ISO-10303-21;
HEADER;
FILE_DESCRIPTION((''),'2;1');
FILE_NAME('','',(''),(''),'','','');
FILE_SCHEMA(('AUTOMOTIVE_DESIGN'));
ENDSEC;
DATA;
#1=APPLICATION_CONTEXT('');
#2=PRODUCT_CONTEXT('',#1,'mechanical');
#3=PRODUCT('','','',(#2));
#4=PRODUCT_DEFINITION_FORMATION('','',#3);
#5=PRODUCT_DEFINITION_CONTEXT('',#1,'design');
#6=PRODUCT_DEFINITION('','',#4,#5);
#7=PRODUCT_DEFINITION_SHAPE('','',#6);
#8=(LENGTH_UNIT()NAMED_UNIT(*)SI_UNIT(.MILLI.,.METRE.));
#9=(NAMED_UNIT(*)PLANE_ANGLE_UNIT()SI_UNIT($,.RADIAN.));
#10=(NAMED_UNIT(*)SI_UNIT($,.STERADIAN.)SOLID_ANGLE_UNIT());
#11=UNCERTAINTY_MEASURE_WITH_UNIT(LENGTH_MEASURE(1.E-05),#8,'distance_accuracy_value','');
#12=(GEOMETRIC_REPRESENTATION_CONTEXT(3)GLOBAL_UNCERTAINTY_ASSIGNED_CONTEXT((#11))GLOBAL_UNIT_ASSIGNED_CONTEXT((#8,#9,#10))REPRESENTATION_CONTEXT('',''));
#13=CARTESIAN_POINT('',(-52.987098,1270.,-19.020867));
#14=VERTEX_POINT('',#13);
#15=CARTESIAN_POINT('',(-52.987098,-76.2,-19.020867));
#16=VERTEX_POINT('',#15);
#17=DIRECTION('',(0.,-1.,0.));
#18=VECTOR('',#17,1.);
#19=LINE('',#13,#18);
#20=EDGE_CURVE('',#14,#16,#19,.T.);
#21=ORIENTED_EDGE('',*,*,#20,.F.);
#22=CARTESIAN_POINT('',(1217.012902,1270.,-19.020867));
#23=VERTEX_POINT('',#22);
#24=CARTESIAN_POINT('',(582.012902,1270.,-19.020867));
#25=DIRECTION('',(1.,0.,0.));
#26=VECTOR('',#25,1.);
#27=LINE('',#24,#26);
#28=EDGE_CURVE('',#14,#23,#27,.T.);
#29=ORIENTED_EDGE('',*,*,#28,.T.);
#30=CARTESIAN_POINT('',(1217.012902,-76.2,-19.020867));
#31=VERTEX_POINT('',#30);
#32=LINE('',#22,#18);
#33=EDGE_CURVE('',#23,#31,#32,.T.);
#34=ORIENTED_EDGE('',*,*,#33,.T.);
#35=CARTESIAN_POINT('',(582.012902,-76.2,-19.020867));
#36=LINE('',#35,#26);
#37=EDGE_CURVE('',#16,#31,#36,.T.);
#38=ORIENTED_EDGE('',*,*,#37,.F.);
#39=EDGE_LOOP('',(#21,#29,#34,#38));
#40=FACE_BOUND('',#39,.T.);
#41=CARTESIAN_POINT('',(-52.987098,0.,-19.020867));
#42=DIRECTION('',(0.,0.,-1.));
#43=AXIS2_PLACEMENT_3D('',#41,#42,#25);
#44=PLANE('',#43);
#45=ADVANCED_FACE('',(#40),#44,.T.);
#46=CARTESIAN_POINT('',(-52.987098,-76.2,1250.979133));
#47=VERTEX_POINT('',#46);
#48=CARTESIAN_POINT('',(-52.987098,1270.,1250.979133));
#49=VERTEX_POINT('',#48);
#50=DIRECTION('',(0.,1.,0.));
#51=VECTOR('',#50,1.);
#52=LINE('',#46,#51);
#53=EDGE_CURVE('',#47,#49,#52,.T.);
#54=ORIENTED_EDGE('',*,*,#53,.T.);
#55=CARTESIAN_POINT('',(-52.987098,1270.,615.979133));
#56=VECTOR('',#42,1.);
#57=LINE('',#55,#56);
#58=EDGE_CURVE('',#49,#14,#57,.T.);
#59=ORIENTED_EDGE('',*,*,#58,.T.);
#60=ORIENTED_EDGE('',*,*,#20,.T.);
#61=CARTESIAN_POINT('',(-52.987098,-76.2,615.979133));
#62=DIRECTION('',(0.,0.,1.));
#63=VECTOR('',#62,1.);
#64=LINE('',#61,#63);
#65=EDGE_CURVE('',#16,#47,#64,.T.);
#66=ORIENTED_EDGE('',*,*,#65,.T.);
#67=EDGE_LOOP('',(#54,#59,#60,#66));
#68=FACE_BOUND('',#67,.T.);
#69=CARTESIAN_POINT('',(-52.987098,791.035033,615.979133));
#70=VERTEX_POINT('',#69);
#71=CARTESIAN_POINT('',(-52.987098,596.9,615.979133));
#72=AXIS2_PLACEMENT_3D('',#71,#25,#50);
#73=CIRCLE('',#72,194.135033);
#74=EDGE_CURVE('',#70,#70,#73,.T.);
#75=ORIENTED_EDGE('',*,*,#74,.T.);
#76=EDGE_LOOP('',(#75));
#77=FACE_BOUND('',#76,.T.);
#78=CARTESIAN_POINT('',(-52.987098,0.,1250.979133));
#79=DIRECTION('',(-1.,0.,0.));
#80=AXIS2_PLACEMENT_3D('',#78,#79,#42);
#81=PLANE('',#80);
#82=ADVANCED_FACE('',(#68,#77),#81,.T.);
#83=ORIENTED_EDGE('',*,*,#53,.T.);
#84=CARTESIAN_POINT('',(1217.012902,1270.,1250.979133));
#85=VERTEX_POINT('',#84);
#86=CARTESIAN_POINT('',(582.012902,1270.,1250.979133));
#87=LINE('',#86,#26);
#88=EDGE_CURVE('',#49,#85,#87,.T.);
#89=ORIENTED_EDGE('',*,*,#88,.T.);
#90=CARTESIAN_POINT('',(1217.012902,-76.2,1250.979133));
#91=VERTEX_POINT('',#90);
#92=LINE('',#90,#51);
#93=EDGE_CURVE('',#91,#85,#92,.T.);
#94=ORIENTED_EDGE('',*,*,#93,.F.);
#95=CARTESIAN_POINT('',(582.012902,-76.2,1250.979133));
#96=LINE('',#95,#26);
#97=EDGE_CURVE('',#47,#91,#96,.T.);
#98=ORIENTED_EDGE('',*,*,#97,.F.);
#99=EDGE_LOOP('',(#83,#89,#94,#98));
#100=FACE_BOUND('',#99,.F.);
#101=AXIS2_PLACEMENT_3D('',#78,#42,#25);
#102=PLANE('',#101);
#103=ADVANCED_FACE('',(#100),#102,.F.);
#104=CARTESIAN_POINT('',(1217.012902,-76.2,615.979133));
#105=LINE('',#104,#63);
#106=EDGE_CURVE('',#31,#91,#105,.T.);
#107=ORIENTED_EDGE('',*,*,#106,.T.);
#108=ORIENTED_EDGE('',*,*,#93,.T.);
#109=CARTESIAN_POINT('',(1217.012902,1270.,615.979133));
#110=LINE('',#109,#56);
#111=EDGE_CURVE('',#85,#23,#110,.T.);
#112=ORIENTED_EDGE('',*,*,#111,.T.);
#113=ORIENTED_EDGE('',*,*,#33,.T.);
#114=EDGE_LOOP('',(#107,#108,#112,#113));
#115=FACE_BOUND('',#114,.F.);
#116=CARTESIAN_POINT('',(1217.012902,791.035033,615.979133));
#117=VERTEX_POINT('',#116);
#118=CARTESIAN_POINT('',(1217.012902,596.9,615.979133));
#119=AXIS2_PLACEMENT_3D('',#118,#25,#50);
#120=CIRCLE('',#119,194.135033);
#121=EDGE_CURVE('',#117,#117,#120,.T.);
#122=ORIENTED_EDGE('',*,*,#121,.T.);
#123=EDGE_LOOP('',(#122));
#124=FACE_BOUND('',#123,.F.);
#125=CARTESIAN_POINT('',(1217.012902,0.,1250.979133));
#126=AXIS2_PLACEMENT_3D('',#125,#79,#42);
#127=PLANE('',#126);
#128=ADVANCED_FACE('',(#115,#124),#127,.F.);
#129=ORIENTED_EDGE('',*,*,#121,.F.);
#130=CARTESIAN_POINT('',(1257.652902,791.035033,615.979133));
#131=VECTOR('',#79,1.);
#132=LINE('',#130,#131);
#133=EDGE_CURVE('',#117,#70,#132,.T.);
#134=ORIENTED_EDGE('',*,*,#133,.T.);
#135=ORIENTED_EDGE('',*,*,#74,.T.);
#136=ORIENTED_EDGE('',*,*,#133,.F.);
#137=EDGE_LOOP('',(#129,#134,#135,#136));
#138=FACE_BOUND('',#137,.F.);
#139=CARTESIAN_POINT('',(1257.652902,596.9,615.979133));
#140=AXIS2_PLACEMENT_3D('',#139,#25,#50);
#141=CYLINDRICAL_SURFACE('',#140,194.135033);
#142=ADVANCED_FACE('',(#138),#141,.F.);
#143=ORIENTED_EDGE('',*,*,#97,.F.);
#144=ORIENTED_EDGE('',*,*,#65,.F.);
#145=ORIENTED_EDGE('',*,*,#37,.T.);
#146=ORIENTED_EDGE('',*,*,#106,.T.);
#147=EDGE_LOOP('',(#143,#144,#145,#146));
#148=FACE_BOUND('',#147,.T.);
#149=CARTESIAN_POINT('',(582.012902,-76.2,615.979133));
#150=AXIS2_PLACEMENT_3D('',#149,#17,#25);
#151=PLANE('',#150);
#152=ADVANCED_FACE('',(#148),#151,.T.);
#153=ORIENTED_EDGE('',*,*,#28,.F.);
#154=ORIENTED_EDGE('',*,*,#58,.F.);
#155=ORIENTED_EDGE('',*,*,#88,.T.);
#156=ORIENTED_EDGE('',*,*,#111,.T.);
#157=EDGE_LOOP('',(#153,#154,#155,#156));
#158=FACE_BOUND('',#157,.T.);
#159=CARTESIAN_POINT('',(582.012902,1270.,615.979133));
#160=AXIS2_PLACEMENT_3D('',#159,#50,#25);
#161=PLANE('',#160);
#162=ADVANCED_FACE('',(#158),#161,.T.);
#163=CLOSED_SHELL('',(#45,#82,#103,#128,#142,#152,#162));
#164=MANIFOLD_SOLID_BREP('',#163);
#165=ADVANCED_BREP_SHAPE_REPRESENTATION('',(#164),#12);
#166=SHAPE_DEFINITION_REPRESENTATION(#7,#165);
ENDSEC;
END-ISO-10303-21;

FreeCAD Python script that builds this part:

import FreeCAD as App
import Part
import Sketcher

V = App.Vector
Q = App.Units.Quantity

doc = App.newDocument("Part")
body = doc.addObject("PartDesign::Body", "Body")

sketch1 = body.newObject("Sketcher::SketchObject", "Sketch")
sketch1.AttachmentSupport = (doc.getObject("XZ_Plane"), [""])
sketch1.MapMode = "FlatFace"
sketch1.addGeometry([
    Part.LineSegment(V(-52.987098, 1250.979133, 0), V(-52.987098, -19.020867, 0)),
    Part.LineSegment(V(-52.987098, -19.020867, 0), V(1217.012902, -19.020867, 0)),
    Part.LineSegment(V(1217.012902, -19.020867, 0), V(1217.012902, 1250.979133, 0)),
    Part.LineSegment(V(1217.012902, 1250.979133, 0), V(-52.987098, 1250.979133, 0)),
], False)
sketch1.addConstraint([
    Sketcher.Constraint("Coincident", 0, 2, 1, 1),
    Sketcher.Constraint("Coincident", 1, 2, 2, 1),
    Sketcher.Constraint("Coincident", 2, 2, 3, 1),
    Sketcher.Constraint("Coincident", 3, 2, 0, 1),
    Sketcher.Constraint("Vertical", 0),
    Sketcher.Constraint("Horizontal", 1),
    Sketcher.Constraint("Vertical", 2),
    Sketcher.Constraint("Horizontal", 3),
    Sketcher.Constraint("Equal", 3, 0),
    Sketcher.Constraint("DistanceX", 1, 1, 1, 2, Q("50 in")),
    Sketcher.Constraint("DistanceX", 0, 2, -1, 1, 52.987098),
    Sketcher.Constraint("DistanceY", 0, 2, -1, 1, 19.020867),
])
pad1 = body.newObject("PartDesign::Pad", "Pad")
pad1.Profile = sketch1
pad1.Length = Q("3 in")

sketch2 = body.newObject("Sketcher::SketchObject", "Sketch001")
sketch2.AttachmentSupport = (doc.getObject("XZ_Plane"), [""])
sketch2.MapMode = "FlatFace"
sketch2.addGeometry([
    Part.LineSegment(V(-52.987098, -19.020867, 0), V(-52.987098, 1250.979133, 0)),
    Part.LineSegment(V(-52.987098, 1250.979133, 0), V(1217.012902, 1250.979133, 0)),
    Part.LineSegment(V(1217.012902, 1250.979133, 0), V(1217.012902, -19.020867, 0)),
    Part.LineSegment(V(1217.012902, -19.020867, 0), V(-52.987098, -19.020867, 0)),
], False)
sketch2.addConstraint([
    Sketcher.Constraint("Coincident", 0, 2, 1, 1),
    Sketcher.Constraint("Coincident", 1, 2, 2, 1),
    Sketcher.Constraint("Coincident", 2, 2, 3, 1),
    Sketcher.Constraint("Coincident", 3, 2, 0, 1),
    Sketcher.Constraint("Vertical", 0),
    Sketcher.Constraint("Horizontal", 1),
    Sketcher.Constraint("Vertical", 2),
    Sketcher.Constraint("Horizontal", 3),
    Sketcher.Constraint("Equal", 3, 0),
    Sketcher.Constraint("DistanceX", 1, 1, 1, 2, Q("50 in")),
    Sketcher.Constraint("DistanceX", 0, 2, -1, 1, 52.987098),
    Sketcher.Constraint("DistanceY", -1, 1, 0, 2, 1250.979133),
])
pad2 = body.newObject("PartDesign::Pad", "Pad001")
pad2.Profile = sketch2
pad2.Length = Q("50 in")
pad2.Reversed = True

sketch3 = body.newObject("Sketcher::SketchObject", "Sketch002")
sketch3.AttachmentSupport = (doc.getObject("YZ_Plane"), [""])
sketch3.MapMode = "FlatFace"
sketch3.AttachmentOffset = App.Placement(V(0, 0, 1217.012902), App.Rotation())
sketch3.addGeometry(Part.Circle(V(596.9, 615.979133, 0), V(0, 0, 1), 194.135033), False)
sketch3.addConstraint([
    Sketcher.Constraint("DistanceX", -1, 1, 0, 3, Q("23.5 in")),
    Sketcher.Constraint("Diameter", 0, 388.270066),
    Sketcher.Constraint("DistanceY", -1, 1, 0, 3, 615.979133),
])
pad3 = body.newObject("PartDesign::Pad", "Pad002")
pad3.Profile = sketch3
pad3.Length = Q("1.6 in")

sketch4 = body.newObject("Sketcher::SketchObject", "Sketch003")
sketch4.AttachmentSupport = (doc.getObject("YZ_Plane"), [""])
sketch4.MapMode = "FlatFace"
sketch4.AttachmentOffset = App.Placement(V(0, 0, 1257.652902), App.Rotation())
sketch4.addGeometry(Part.Circle(V(596.9, 615.979133, 0), V(0, 0, 1), 194.135033), False)
sketch4.addConstraint([
    Sketcher.Constraint("DistanceX", -1, 1, 0, 3, Q("23.5 in")),
    Sketcher.Constraint("Diameter", 0, 388.270066),
    Sketcher.Constraint("DistanceY", -1, 1, 0, 3, 615.979133),
])
pocket1 = body.newObject("PartDesign::Pocket", "Pocket")
pocket1.Profile = sketch4
pocket1.Length = Q("55 in")

doc.recompute()
